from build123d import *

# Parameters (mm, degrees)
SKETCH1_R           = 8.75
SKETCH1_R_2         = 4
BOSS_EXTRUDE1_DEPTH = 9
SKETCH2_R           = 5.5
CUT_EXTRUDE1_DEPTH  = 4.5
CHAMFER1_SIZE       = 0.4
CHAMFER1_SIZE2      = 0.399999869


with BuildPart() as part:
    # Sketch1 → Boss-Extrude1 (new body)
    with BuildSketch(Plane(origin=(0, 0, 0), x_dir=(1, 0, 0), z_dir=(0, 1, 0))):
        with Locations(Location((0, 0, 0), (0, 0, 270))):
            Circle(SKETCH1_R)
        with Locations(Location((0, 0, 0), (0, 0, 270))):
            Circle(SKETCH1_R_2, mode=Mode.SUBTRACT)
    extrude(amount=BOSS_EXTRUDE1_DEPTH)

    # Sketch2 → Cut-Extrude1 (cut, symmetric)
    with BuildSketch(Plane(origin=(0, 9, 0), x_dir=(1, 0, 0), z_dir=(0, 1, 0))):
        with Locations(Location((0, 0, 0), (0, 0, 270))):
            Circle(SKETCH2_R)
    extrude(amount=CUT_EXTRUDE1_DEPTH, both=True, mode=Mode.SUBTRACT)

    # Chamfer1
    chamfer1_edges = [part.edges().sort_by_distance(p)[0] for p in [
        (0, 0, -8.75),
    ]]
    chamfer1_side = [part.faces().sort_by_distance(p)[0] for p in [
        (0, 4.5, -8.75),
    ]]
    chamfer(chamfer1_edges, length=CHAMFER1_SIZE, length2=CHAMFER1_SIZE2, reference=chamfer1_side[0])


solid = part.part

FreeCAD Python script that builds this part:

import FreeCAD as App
import Part
import Sketcher


def edges_at(feature, points):
    """Names of the edges that pass closest to the given points."""
    edges = feature.Shape.Edges
    near = lambda p: min(range(len(edges)), key=lambda i: edges[i].distToShape(Part.Vertex(*p))[0])
    return sorted({f"Edge{near(p) + 1}" for p in points})

doc = App.newDocument("Part")
body = doc.addObject("PartDesign::Body", "Body")

sketch1 = body.newObject("Sketcher::SketchObject", "Sketch")
sketch1.AttachmentSupport = (doc.getObject("XZ_Plane"), [""])
sketch1.MapMode = "FlatFace"
sketch1.addGeometry(Part.Circle(App.Vector(0, 0, 0), App.Vector(0, 0, 1), 8.8), False)
sketch1.addGeometry(Part.Circle(App.Vector(0, 0, 0), App.Vector(0, 0, 1), 4), False)
sketch1.addConstraint(Sketcher.Constraint("Coincident", 0, 3, -1, 1))
sketch1.addConstraint(Sketcher.Constraint("Coincident", 1, 3, -1, 1))
sketch1.addConstraint(Sketcher.Constraint("Diameter", 1, 8.0))
sketch1.addConstraint(Sketcher.Constraint("Diameter", 0, 17.5))
pad1 = body.newObject("PartDesign::Pad", "Pad")
pad1.Profile = sketch1
pad1.Length = 9
pad1.Reversed = True

sketch2 = body.newObject("Sketcher::SketchObject", "Sketch001")
sketch2.AttachmentSupport = (doc.getObject("XZ_Plane"), [""])
sketch2.MapMode = "FlatFace"
sketch2.AttachmentOffset = App.Placement(App.Vector(0, 0, -9), App.Rotation())
sketch2.addGeometry(Part.Circle(App.Vector(0, 0, 0), App.Vector(0, 0, 1), 6), False)
sketch2.addConstraint(Sketcher.Constraint("Coincident", 0, 3, -1, 1))
sketch2.addConstraint(Sketcher.Constraint("Diameter", 0, 11.0))
pocket1 = body.newObject("PartDesign::Pocket", "Pocket")
pocket1.Profile = sketch2
pocket1.Length = 9
pocket1.Midplane = True
doc.recompute()

chamfer = body.newObject("PartDesign::Chamfer", "Chamfer")
chamfer.Base = (pocket1, edges_at(pocket1, [(0, 0, -8.75)]))
chamfer.ChamferType = "Two distances"
chamfer.Size = 0.4
chamfer.Size2 = 0.4

doc.recompute()
